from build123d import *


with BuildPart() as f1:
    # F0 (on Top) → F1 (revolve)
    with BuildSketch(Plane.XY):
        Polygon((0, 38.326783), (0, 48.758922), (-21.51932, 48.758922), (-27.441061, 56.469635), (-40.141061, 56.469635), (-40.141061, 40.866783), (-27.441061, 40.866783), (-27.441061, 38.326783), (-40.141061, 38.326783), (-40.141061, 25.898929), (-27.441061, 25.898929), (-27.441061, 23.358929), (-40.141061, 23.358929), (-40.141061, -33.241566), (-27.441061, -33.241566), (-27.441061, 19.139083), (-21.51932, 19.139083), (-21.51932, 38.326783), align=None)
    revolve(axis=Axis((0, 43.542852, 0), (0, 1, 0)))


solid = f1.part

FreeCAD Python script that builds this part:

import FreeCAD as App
import Part
import Sketcher
from FreeCAD import Vector
Q = App.Units.Quantity


def add_polygon(sketch, points):
    """Adds a closed chain of lines whose ends are joined by coincident constraints."""
    first, n = sketch.GeometryCount, len(points)
    for a, b in zip(points, points[1:] + points[:1]):
        sketch.addGeometry(Part.LineSegment(App.Vector(*a, 0), App.Vector(*b, 0)), False)
    for i in range(n):
        sketch.addConstraint(Sketcher.Constraint("Coincident", first + i, 2, first + (i + 1) % n, 1))

doc = App.newDocument("Part")
body = doc.addObject("PartDesign::Body", "Body")

# Sketch on XY plane
sketch1 = body.newObject("Sketcher::SketchObject", "Sketch")
sketch1.AttachmentSupport = (doc.getObject("XY_Plane"), [""])
sketch1.MapMode = "FlatFace"
add_polygon(sketch1, [(0, 38.3), (0, 48.8), (-21.5, 48.8), (-27.4, 56.5), (-40.1, 56.5), (-40.1, 40.9), (-27.4, 40.9), (-27.4, 38.3), (-40.1, 38.3), (-40.1, 25.9), (-27.4, 25.9), (-27.4, 23.4), (-40.1, 23.4), (-40.1, -33.2), (-27.4, -33.2), (-27.4, 19.1), (-21.5, 19.1), (-21.5, 38.3)])  # lines 0-17
sketch1.addConstraint([
    Sketcher.Constraint("Vertical", 0),
    Sketcher.Constraint("Horizontal", 1),
    Sketcher.Constraint("Horizontal", 3),
    Sketcher.Constraint("Vertical", 4),
    Sketcher.Constraint("Horizontal", 5),
    Sketcher.Constraint("Vertical", 6),
    Sketcher.Constraint("Horizontal", 7),
    Sketcher.Constraint("Vertical", 8),
    Sketcher.Constraint("Horizontal", 9),
    Sketcher.Constraint("Vertical", 10),
    Sketcher.Constraint("Horizontal", 11),
    Sketcher.Constraint("Vertical", 12),
    Sketcher.Constraint("Horizontal", 13),
    Sketcher.Constraint("Vertical", 14),
    Sketcher.Constraint("Horizontal", 15),
    Sketcher.Constraint("Vertical", 16),
    Sketcher.Constraint("Horizontal", 17),
    Sketcher.Constraint("PointOnObject", 0, 2, -2),
    Sketcher.Constraint("Horizontal", 7, 2, 16, 2),
    Sketcher.Constraint("Vertical", 2, 2, 5, 2),
    Sketcher.Constraint("Vertical", 4, 2, 7, 2),
    Sketcher.Constraint("Vertical", 6, 2, 9, 2),
    Sketcher.Constraint("Vertical", 8, 2, 11, 2),
    Sketcher.Constraint("Vertical", 10, 2, 13, 2),
    Sketcher.Constraint("Vertical", 1, 2, 15, 2),
    Sketcher.Constraint("Equal", 6, 10),
    Sketcher.Constraint("DistanceX", 3, 2, 3, 1, Q("0.5 in")),
    Sketcher.Constraint("DistanceY", 6, 2, 6, 1, Q("0.1 in")),
    Sketcher.Constraint("DistanceY", 16, 1, 16, 2, 19.1877),
    Sketcher.Constraint("DistanceX", 1, 2, 1, 1, 21.51932),
    Sketcher.Constraint("DistanceX", 15, 1, 15, 2, 5.921741),
    Sketcher.Constraint("DistanceY", 0, 1, 0, 2, 10.432139),
    Sketcher.Constraint("DistanceY", 4, 2, 4, 1, 15.602852),
    Sketcher.Constraint("DistanceY", 14, 1, 14, 2, 52.380649),
    Sketcher.Constraint("DistanceY", 8, 2, 8, 1, 12.427854),
    Sketcher.Constraint("DistanceY", -1, 1, 0, 2, 48.758922),
])
revolution = body.newObject("PartDesign::Revolution", "Revolution")
revolution.Profile = sketch1
revolution.ReferenceAxis = (sketch1, ["V_Axis"])
revolution.Angle = 360

doc.recompute()
